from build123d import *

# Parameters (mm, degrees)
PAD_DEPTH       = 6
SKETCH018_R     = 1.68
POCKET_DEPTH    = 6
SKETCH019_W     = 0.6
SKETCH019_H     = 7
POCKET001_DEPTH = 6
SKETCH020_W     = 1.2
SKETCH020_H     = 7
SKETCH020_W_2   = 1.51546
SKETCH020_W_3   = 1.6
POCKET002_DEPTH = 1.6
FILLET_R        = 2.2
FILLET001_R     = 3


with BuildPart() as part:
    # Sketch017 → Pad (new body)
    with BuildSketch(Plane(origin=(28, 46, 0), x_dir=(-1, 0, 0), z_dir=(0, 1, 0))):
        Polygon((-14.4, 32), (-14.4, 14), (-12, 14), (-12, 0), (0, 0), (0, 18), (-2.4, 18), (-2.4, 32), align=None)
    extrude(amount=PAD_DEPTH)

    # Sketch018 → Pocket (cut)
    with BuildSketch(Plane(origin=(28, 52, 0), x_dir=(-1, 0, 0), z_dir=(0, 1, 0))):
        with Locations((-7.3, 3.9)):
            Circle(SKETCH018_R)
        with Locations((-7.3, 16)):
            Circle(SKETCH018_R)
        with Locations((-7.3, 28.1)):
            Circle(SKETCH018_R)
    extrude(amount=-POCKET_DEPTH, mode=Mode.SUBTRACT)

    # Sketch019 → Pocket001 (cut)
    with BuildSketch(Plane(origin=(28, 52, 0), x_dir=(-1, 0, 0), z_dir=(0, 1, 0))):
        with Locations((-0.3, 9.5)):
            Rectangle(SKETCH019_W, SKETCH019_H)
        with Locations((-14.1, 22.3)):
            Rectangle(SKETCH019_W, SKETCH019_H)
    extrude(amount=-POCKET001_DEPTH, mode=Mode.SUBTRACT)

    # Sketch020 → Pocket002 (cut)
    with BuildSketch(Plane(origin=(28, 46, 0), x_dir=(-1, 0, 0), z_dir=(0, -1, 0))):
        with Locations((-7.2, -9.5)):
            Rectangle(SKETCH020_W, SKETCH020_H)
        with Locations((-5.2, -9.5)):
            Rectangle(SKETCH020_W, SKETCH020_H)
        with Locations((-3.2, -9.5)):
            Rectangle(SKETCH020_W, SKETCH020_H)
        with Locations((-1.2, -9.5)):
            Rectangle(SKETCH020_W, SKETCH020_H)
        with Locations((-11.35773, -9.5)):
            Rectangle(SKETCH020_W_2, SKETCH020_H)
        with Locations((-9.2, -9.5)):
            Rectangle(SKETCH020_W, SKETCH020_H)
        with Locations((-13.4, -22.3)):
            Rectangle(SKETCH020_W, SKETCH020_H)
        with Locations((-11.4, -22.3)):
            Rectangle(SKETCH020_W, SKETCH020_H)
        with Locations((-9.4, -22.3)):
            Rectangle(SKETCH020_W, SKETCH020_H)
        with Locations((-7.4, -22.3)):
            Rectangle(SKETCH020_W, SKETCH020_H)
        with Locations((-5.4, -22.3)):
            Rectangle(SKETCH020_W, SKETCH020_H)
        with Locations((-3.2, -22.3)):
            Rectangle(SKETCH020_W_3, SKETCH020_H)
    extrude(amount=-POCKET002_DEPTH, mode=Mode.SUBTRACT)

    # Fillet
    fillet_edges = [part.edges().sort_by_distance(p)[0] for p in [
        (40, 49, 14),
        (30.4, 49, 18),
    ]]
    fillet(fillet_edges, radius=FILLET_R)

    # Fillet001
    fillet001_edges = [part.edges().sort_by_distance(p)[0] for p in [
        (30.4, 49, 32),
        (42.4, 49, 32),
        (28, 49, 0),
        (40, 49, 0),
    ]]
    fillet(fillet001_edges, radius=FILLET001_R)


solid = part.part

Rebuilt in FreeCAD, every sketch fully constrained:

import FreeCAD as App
import Part
import Sketcher

V = App.Vector
Q = App.Units.Quantity


def edges_at(feature, points):
    """Names of the edges that pass closest to the given points."""
    edges = feature.Shape.Edges
    near = lambda p: min(range(len(edges)), key=lambda i: edges[i].distToShape(Part.Vertex(*p))[0])
    return sorted({f"Edge{near(p) + 1}" for p in points})


def add_polygon(sketch, points):
    """Adds a closed chain of lines whose ends are joined by coincident constraints."""
    first, n = sketch.GeometryCount, len(points)
    for a, b in zip(points, points[1:] + points[:1]):
        sketch.addGeometry(Part.LineSegment(App.Vector(*a, 0), App.Vector(*b, 0)), False)
    for i in range(n):
        sketch.addConstraint(Sketcher.Constraint("Coincident", first + i, 2, first + (i + 1) % n, 1))

doc = App.newDocument("Part")
body = doc.addObject("PartDesign::Body", "Body")

# Sketch on XZ plane
sketch1 = doc.addObject("Sketcher::SketchObject", "Sketch")
body.addObject(sketch1)
sketch1.AttachmentSupport = (doc.XZ_Plane, [""])
sketch1.MapMode = "FlatFace"
sketch1.AttachmentOffset = App.Placement(V(0, 0, -46), App.Rotation())
add_polygon(sketch1, [(42.4, 32), (42.4, 14), (40, 14), (40, 0), (28, 0), (28, 18), (30.4, 18), (30.4, 32)])  # lines 0-7
sketch1.addConstraint([
    Sketcher.Constraint("Vertical", 0),
    Sketcher.Constraint("Horizontal", 1),
    Sketcher.Constraint("Vertical", 2),
    Sketcher.Constraint("Horizontal", 3),
    Sketcher.Constraint("Vertical", 4),
    Sketcher.Constraint("Horizontal", 5),
    Sketcher.Constraint("Vertical", 6),
    Sketcher.Constraint("Horizontal", 7),
    Sketcher.Constraint("PointOnObject", 2, 2, -1),
    Sketcher.Constraint("Equal", 1, 5),
    Sketcher.Constraint("Equal", 0, 4),
    Sketcher.Constraint("DistanceX", 3, 2, 3, 1, Q("12 mm")),
    Sketcher.Constraint("DistanceY", 0, 2, 0, 1, Q("18 mm")),
    Sketcher.Constraint("DistanceY", 2, 2, 2, 1, Q("14 mm")),
    Sketcher.Constraint("DistanceX", 1, 2, 1, 1, Q("2.4 mm")),
    Sketcher.Constraint("DistanceX", -1, 1, 1, 2, Q("40 mm")),
])
pad1 = doc.addObject("PartDesign::Pad", "Pad")
body.addObject(pad1)
pad1.Profile = sketch1
pad1.Length = 6
pad1.Reversed = True

# Sketch on XZ plane
sketch2 = doc.addObject("Sketcher::SketchObject", "Sketch001")
body.addObject(sketch2)
sketch2.AttachmentSupport = (doc.XZ_Plane, [""])
sketch2.MapMode = "FlatFace"
sketch2.AttachmentOffset = App.Placement(V(0, 0, -52), App.Rotation())
sketch2.addGeometry([
    Part.Circle(V(35.3, 3.9, 0), V(0, 0, 1), 1.7),
    Part.Circle(V(35.3, 16, 0), V(0, 0, 1), 1.7),
    Part.Circle(V(35.3, 28.1, 0), V(0, 0, 1), 1.7),
], False)
sketch2.addConstraint([
    Sketcher.Constraint("Equal", 0, 1),
    Sketcher.Constraint("Equal", 1, 2),
    Sketcher.Constraint("Vertical", 0, 3, 1, 3),
    Sketcher.Constraint("Vertical", 1, 3, 2, 3),
    Sketcher.Constraint("Diameter", 0, Q("3.36 mm")),
    Sketcher.Constraint("DistanceY", -1, 1, 1, 3, Q("16 mm")),
    Sketcher.Constraint("DistanceX", -1, 1, 0, 3, Q("35.3 mm")),
    Sketcher.Constraint("DistanceY", -1, 1, 0, 3, Q("3.9 mm")),
    Sketcher.Constraint("DistanceY", -1, 1, 2, 3, Q("28.1 mm")),
])
pocket1 = doc.addObject("PartDesign::Pocket", "Pocket")
body.addObject(pocket1)
pocket1.Profile = sketch2
pocket1.Length = 6
pocket1.Reversed = True

# Sketch on XZ plane
sketch3 = doc.addObject("Sketcher::SketchObject", "Sketch002")
body.addObject(sketch3)
sketch3.AttachmentSupport = (doc.XZ_Plane, [""])
sketch3.MapMode = "FlatFace"
sketch3.AttachmentOffset = App.Placement(V(0, 0, -52), App.Rotation())
add_polygon(sketch3, [(28.6, 13), (28.6, 6), (28, 6), (28, 13)])  # lines 0-3
add_polygon(sketch3, [(42.4, 25.8), (42.4, 18.8), (41.8, 18.8), (41.8, 25.8)])  # lines 4-7
sketch3.addConstraint([
    Sketcher.Constraint("Vertical", 0),
    Sketcher.Constraint("Horizontal", 1),
    Sketcher.Constraint("Vertical", 2),
    Sketcher.Constraint("Horizontal", 3),
    Sketcher.Constraint("Vertical", 4),
    Sketcher.Constraint("Horizontal", 5),
    Sketcher.Constraint("Vertical", 6),
    Sketcher.Constraint("Horizontal", 7),
    Sketcher.Constraint("Equal", 3, 5),
    Sketcher.Constraint("Equal", 2, 4),
    Sketcher.Constraint("DistanceY", 0, 2, 0, 1, Q("7 mm")),
    Sketcher.Constraint("DistanceX", 1, 2, 1, 1, Q("0.6 mm")),
    Sketcher.Constraint("DistanceY", -1, 1, 0, 2, Q("6 mm")),
    Sketcher.Constraint("DistanceX", -1, 1, 1, 2, Q("28 mm")),
    Sketcher.Constraint("DistanceX", -1, 1, 4, 2, Q("42.4 mm")),
    Sketcher.Constraint("DistanceY", -1, 1, 4, 2, Q("18.8 mm")),
])
pocket2 = doc.addObject("PartDesign::Pocket", "Pocket001")
body.addObject(pocket2)
pocket2.Profile = sketch3
pocket2.Length = 6
pocket2.Reversed = True

# Sketch on XZ plane
sketch4 = doc.addObject("Sketcher::SketchObject", "Sketch003")
body.addObject(sketch4)
sketch4.AttachmentSupport = (doc.XZ_Plane, [""])
sketch4.MapMode = "FlatFace"
sketch4.AttachmentOffset = App.Placement(V(0, 0, -46), App.Rotation())
add_polygon(sketch4, [(35.8, 6), (35.8, 13), (34.6, 13), (34.6, 6)])  # lines 0-3
add_polygon(sketch4, [(33.8, 6), (33.8, 13), (32.6, 13), (32.6, 6)])  # lines 4-7
add_polygon(sketch4, [(31.8, 6), (31.8, 13), (30.6, 13), (30.6, 6)])  # lines 8-11
add_polygon(sketch4, [(29.8, 6), (29.8, 13), (28.6, 13), (28.6, 6)])  # lines 12-15
add_polygon(sketch4, [(40.1, 6), (40.1, 13), (38.6, 13), (38.6, 6)])  # lines 16-19
add_polygon(sketch4, [(37.8, 6), (37.8, 13), (36.6, 13), (36.6, 6)])  # lines 20-23
add_polygon(sketch4, [(42, 18.8), (42, 25.8), (40.8, 25.8), (40.8, 18.8)])  # lines 24-27
add_polygon(sketch4, [(40, 18.8), (40, 25.8), (38.8, 25.8), (38.8, 18.8)])  # lines 28-31
add_polygon(sketch4, [(38, 18.8), (38, 25.8), (36.8, 25.8), (36.8, 18.8)])  # lines 32-35
add_polygon(sketch4, [(36, 18.8), (36, 25.8), (34.8, 25.8), (34.8, 18.8)])  # lines 36-39
add_polygon(sketch4, [(34, 18.8), (34, 25.8), (32.8, 25.8), (32.8, 18.8)])  # lines 40-43
add_polygon(sketch4, [(32, 18.8), (32, 25.8), (30.4, 25.8), (30.4, 18.8)])  # lines 44-47
sketch4.addConstraint([
    Sketcher.Constraint("Vertical", 0),
    Sketcher.Constraint("Horizontal", 1),
    Sketcher.Constraint("Vertical", 2),
    Sketcher.Constraint("Horizontal", 3),
    Sketcher.Constraint("Vertical", 4),
    Sketcher.Constraint("Horizontal", 5),
    Sketcher.Constraint("Vertical", 6),
    Sketcher.Constraint("Horizontal", 7),
    Sketcher.Constraint("Vertical", 8),
    Sketcher.Constraint("Horizontal", 9),
    Sketcher.Constraint("Vertical", 10),
    Sketcher.Constraint("Horizontal", 11),
    Sketcher.Constraint("Vertical", 12),
    Sketcher.Constraint("Horizontal", 13),
    Sketcher.Constraint("Vertical", 14),
    Sketcher.Constraint("Horizontal", 15),
    Sketcher.Constraint("Vertical", 16),
    Sketcher.Constraint("Horizontal", 17),
    Sketcher.Constraint("Vertical", 18),
    Sketcher.Constraint("Horizontal", 19),
    Sketcher.Constraint("Vertical", 20),
    Sketcher.Constraint("Horizontal", 21),
    Sketcher.Constraint("Vertical", 22),
    Sketcher.Constraint("Horizontal", 23),
    Sketcher.Constraint("Vertical", 24),
    Sketcher.Constraint("Horizontal", 25),
    Sketcher.Constraint("Vertical", 26),
    Sketcher.Constraint("Horizontal", 27),
    Sketcher.Constraint("Vertical", 28),
    Sketcher.Constraint("Horizontal", 29),
    Sketcher.Constraint("Vertical", 30),
    Sketcher.Constraint("Horizontal", 31),
    Sketcher.Constraint("Vertical", 32),
    Sketcher.Constraint("Horizontal", 33),
    Sketcher.Constraint("Vertical", 34),
    Sketcher.Constraint("Horizontal", 35),
    Sketcher.Constraint("Vertical", 36),
    Sketcher.Constraint("Horizontal", 37),
    Sketcher.Constraint("Vertical", 38),
    Sketcher.Constraint("Horizontal", 39),
    Sketcher.Constraint("Vertical", 40),
    Sketcher.Constraint("Horizontal", 41),
    Sketcher.Constraint("Vertical", 42),
    Sketcher.Constraint("Horizontal", 43),
    Sketcher.Constraint("Vertical", 44),
    Sketcher.Constraint("Horizontal", 45),
    Sketcher.Constraint("Vertical", 46),
    Sketcher.Constraint("Horizontal", 47),
    Sketcher.Constraint("Horizontal", 1, 2, 4, 2),
    Sketcher.Constraint("Horizontal", 3, 2, 6, 2),
    Sketcher.Constraint("Horizontal", 5, 2, 8, 2),
    Sketcher.Constraint("Horizontal", 7, 2, 10, 2),
    Sketcher.Constraint("Horizontal", 9, 2, 12, 2),
    Sketcher.Constraint("Horizontal", 11, 2, 14, 2),
    Sketcher.Constraint("Horizontal", 13, 2, 16, 2),
    Sketcher.Constraint("Horizontal", 15, 2, 18, 2),
    Sketcher.Constraint("Horizontal", 17, 2, 20, 2),
    Sketcher.Constraint("Horizontal", 19, 2, 22, 2),
    Sketcher.Constraint("Horizontal", 25, 2, 28, 2),
    Sketcher.Constraint("Horizontal", 27, 2, 30, 2),
    Sketcher.Constraint("Horizontal", 29, 2, 32, 2),
    Sketcher.Constraint("Horizontal", 31, 2, 34, 2),
    Sketcher.Constraint("Horizontal", 33, 2, 36, 2),
    Sketcher.Constraint("Horizontal", 35, 2, 38, 2),
    Sketcher.Constraint("Horizontal", 37, 2, 40, 2),
    Sketcher.Constraint("Horizontal", 39, 2, 42, 2),
    Sketcher.Constraint("Horizontal", 41, 2, 44, 2),
    Sketcher.Constraint("Horizontal", 43, 2, 46, 2),
    Sketcher.Constraint("Equal", 3, 5),
    Sketcher.Constraint("Equal", 7, 9),
    Sketcher.Constraint("Equal", 11, 13),
    Sketcher.Constraint("Equal", 15, 21),
    Sketcher.Constraint("Equal", 23, 25),
    Sketcher.Constraint("Equal", 27, 29),
    Sketcher.Constraint("Equal", 31, 33),
    Sketcher.Constraint("Equal", 35, 37),
    Sketcher.Constraint("Equal", 39, 41),
    Sketcher.Constraint("Equal", 22, 24),
    Sketcher.Constraint("DistanceY", 0, 1, 0, 2, Q("7 mm")),
    Sketcher.Constraint("DistanceX", 1, 2, 1, 1, Q("1.2 mm")),
    Sketcher.Constraint("DistanceX", 45, 2, 45, 1, Q("1.6 mm")),
    Sketcher.Constraint("DistanceY", -1, 1, 0, 2, Q("13 mm")),
    Sketcher.Constraint("DistanceX", -1, 1, 24, 2, Q("42 mm")),
    Sketcher.Constraint("DistanceX", -1, 1, 28, 2, Q("40 mm")),
    Sketcher.Constraint("DistanceX", -1, 1, 32, 2, Q("38 mm")),
    Sketcher.Constraint("DistanceX", -1, 1, 36, 2, Q("36 mm")),
    Sketcher.Constraint("DistanceX", -1, 1, 40, 2, Q("34 mm")),
    Sketcher.Constraint("DistanceX", -1, 1, 44, 2, Q("32 mm")),
    Sketcher.Constraint("DistanceX", 4, 2, 0, 2, Q("2 mm")),
    Sketcher.Constraint("DistanceX", 8, 2, 4, 2, Q("2 mm")),
    Sketcher.Constraint("DistanceX", 12, 2, 8, 2, Q("2 mm")),
    Sketcher.Constraint("DistanceX", 1, 2, 17, 2, Q("4 mm")),
    Sketcher.Constraint("DistanceX", 0, 2, 20, 2, Q("2 mm")),
    Sketcher.Constraint("DistanceX", 20, 2, 25, 2, Q("3 mm")),
    Sketcher.Constraint("DistanceY", -1, 1, 24, 2, Q("25.8 mm")),
    Sketcher.Constraint("DistanceX", 17, 2, 17, 1, Q("1.51546 mm")),
])
pocket3 = doc.addObject("PartDesign::Pocket", "Pocket002")
body.addObject(pocket3)
pocket3.Profile = sketch4
pocket3.Length = 1.6
doc.recompute()

fillet = doc.addObject("PartDesign::Fillet", "Fillet")
body.addObject(fillet)
fillet.Base = (pocket3, edges_at(pocket3, [(40, 49, 14), (30.4, 49, 18)]))
fillet.Radius = 2.2
doc.recompute()

fillet2 = doc.addObject("PartDesign::Fillet", "Fillet001")
body.addObject(fillet2)
fillet2.Base = (fillet, edges_at(fillet, [
    (30.4, 49, 32),
    (42.4, 49, 32),
    (28, 49, 0),
    (40, 49, 0),
]))
fillet2.Radius = 3

doc.recompute()
